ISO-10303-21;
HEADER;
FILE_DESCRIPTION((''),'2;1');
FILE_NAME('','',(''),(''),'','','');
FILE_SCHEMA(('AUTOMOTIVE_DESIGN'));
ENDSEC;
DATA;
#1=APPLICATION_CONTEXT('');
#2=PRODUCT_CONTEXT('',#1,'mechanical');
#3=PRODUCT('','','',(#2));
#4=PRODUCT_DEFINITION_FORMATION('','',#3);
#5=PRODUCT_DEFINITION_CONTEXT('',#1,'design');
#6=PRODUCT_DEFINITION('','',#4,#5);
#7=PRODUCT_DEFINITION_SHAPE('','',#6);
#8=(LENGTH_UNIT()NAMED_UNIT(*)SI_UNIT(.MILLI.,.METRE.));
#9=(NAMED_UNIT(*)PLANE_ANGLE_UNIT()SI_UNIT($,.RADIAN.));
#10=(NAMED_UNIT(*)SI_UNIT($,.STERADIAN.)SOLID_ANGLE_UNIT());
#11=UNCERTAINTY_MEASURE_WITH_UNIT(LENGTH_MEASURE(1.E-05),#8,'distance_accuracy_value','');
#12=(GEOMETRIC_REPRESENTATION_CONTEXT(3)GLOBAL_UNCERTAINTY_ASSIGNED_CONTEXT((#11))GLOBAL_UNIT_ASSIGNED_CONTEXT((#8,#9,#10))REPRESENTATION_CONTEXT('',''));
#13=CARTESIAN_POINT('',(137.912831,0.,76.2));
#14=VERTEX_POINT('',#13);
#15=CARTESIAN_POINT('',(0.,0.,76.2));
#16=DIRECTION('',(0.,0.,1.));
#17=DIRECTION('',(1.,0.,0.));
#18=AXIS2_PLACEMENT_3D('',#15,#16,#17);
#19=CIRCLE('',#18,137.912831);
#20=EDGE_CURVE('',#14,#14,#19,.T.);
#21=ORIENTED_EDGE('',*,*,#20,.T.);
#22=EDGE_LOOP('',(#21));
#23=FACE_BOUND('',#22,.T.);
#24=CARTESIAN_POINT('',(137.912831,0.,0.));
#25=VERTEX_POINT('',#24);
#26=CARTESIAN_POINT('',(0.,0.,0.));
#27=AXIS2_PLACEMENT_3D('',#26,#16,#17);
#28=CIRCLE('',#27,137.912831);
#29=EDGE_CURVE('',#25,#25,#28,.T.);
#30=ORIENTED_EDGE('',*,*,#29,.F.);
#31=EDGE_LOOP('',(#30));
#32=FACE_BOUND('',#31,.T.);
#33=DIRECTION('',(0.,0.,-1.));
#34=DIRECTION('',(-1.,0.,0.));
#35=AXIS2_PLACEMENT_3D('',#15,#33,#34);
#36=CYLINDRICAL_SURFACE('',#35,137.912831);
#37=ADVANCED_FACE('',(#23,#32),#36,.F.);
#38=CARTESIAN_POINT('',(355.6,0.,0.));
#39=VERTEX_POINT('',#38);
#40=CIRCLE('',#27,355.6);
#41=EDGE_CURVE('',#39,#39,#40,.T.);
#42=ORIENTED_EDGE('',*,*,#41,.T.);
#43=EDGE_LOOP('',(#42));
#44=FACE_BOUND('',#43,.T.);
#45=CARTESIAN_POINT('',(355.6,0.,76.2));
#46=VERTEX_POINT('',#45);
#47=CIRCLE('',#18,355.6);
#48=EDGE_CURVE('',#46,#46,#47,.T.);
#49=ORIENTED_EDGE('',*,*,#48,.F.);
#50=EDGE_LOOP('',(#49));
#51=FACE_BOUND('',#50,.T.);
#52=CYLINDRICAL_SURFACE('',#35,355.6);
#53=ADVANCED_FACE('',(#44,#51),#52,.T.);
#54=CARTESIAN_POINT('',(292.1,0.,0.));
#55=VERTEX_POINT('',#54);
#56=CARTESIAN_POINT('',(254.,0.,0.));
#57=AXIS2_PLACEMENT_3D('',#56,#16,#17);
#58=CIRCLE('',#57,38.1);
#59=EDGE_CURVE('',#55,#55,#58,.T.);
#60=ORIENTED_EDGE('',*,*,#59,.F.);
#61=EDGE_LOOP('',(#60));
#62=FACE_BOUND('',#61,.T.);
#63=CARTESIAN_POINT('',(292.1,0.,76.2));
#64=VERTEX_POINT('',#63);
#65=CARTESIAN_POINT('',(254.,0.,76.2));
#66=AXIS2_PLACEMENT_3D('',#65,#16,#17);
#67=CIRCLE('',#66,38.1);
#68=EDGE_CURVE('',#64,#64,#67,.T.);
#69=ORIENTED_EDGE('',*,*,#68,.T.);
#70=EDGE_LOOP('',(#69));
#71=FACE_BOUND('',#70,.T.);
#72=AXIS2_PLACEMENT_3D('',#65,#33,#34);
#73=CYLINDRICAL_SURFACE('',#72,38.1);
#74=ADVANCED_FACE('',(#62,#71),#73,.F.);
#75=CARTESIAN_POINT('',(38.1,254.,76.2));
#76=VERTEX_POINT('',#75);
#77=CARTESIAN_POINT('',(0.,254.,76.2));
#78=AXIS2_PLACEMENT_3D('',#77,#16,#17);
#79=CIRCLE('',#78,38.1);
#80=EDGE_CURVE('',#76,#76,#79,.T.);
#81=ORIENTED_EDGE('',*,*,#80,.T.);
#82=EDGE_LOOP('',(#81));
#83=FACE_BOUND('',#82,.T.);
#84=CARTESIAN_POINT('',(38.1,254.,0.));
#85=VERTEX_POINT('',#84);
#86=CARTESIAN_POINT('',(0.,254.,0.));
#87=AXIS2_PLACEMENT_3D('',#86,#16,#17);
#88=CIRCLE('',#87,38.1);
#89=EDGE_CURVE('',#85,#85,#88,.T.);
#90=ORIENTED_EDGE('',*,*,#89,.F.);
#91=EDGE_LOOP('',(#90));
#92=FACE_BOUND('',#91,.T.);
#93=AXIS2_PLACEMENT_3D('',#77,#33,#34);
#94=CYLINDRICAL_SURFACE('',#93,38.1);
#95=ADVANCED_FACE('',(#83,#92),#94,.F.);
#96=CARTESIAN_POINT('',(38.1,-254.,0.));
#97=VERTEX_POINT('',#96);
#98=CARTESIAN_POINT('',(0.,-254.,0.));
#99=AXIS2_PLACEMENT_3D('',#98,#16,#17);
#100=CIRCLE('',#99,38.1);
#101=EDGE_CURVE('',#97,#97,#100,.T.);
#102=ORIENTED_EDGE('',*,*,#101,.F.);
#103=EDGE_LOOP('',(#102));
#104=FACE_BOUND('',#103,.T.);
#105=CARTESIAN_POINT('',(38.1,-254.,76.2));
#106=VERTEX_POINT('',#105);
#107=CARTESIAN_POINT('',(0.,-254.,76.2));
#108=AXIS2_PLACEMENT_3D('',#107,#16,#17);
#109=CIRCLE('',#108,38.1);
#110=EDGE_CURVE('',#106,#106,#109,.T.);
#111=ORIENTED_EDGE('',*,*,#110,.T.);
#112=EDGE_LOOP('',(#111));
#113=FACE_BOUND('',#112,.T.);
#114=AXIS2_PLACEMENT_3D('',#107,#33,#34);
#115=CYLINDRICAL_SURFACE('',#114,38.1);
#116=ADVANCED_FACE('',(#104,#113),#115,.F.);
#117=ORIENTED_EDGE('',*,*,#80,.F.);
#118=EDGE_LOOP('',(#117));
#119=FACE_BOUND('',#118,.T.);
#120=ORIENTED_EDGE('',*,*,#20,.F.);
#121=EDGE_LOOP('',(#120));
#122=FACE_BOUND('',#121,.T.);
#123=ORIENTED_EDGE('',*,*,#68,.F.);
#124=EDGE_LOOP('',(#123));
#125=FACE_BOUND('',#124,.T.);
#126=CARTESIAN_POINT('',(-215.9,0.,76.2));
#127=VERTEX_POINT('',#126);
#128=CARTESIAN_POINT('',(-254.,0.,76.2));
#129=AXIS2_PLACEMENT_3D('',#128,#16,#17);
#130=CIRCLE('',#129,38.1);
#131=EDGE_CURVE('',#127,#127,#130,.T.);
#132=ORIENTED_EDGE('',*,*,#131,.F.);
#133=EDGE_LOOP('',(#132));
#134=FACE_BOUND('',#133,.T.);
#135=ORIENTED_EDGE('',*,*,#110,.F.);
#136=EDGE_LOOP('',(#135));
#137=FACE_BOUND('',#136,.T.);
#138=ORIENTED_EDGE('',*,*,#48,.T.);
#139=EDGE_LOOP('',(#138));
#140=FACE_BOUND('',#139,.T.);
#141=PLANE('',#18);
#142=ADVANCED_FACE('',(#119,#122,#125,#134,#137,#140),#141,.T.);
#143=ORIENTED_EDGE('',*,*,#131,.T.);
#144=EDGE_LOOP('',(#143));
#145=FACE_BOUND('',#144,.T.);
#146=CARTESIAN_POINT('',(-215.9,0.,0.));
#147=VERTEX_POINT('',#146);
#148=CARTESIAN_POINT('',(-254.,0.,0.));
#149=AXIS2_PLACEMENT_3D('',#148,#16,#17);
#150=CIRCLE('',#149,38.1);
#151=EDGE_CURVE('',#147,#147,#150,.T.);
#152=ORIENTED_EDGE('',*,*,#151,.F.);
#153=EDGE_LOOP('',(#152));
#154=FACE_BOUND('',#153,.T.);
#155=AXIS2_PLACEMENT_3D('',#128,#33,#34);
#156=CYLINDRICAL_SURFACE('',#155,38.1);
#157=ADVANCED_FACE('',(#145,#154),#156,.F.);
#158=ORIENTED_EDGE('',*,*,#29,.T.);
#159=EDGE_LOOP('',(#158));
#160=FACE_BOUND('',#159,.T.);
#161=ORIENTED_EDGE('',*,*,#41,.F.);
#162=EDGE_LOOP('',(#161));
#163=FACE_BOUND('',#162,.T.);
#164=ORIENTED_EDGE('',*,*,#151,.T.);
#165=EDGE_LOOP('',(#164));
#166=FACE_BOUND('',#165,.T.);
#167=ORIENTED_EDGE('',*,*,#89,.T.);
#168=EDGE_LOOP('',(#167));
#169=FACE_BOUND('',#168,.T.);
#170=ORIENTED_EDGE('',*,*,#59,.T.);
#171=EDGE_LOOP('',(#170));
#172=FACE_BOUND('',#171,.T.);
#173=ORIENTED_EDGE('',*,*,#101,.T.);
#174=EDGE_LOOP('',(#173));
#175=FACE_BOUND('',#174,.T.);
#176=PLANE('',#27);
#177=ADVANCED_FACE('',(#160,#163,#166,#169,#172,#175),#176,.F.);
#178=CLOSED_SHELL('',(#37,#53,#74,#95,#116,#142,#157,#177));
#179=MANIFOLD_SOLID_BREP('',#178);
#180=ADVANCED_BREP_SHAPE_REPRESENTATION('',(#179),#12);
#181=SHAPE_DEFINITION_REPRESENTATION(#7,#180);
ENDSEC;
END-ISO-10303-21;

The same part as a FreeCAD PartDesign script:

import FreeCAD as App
import Part
import Sketcher
from FreeCAD import Vector
Q = App.Units.Quantity

doc = App.newDocument("Part")
body = doc.addObject("PartDesign::Body", "Body")

sketch1 = body.newObject("Sketcher::SketchObject", "Sketch")
sketch1.AttachmentSupport = (doc.getObject("XY_Plane"), [""])
sketch1.MapMode = "FlatFace"
sketch1.addGeometry([
    Part.Circle(Vector(0, 0, 0), Vector(0, 0, 1), 356),
    Part.Circle(Vector(0, -254, 0), Vector(0, 0, 1), 38),
    Part.Circle(Vector(-254, 0, 0), Vector(0, 0, 1), 38),
    Part.Circle(Vector(0, 254, 0), Vector(0, 0, 1), 38),
    Part.Circle(Vector(0, 0, 0), Vector(0, 0, 1), 138),
    Part.Circle(Vector(254, 0, 0), Vector(0, 0, 1), 38),
], False)
sketch1.addConstraint([
    Sketcher.Constraint("Coincident", 0, 3, -1, 1),
    Sketcher.Constraint("Coincident", 4, 3, -1, 1),
    Sketcher.Constraint("Equal", 1, 2),
    Sketcher.Constraint("Equal", 2, 3),
    Sketcher.Constraint("Equal", 3, 5),
    Sketcher.Constraint("Symmetric", 1, 3, 3, 3, -1, 1),
    Sketcher.Constraint("Symmetric", 2, 3, 5, 3, -1, 1),
    Sketcher.Constraint("PointOnObject", 1, 3, -2),
    Sketcher.Constraint("PointOnObject", 2, 3, -1),
    Sketcher.Constraint("Diameter", 0, Q("28 in")),
    Sketcher.Constraint("Diameter", 1, Q("3 in")),
    Sketcher.Constraint("DistanceY", 1, 3, -1, 1, Q("10 in")),
    Sketcher.Constraint("DistanceX", 2, 3, -1, 1, Q("10 in")),
    Sketcher.Constraint("Diameter", 4, 275.825662),
])
pad1 = body.newObject("PartDesign::Pad", "Pad")
pad1.Profile = sketch1
pad1.Length = Q("3 in")

doc.recompute()
